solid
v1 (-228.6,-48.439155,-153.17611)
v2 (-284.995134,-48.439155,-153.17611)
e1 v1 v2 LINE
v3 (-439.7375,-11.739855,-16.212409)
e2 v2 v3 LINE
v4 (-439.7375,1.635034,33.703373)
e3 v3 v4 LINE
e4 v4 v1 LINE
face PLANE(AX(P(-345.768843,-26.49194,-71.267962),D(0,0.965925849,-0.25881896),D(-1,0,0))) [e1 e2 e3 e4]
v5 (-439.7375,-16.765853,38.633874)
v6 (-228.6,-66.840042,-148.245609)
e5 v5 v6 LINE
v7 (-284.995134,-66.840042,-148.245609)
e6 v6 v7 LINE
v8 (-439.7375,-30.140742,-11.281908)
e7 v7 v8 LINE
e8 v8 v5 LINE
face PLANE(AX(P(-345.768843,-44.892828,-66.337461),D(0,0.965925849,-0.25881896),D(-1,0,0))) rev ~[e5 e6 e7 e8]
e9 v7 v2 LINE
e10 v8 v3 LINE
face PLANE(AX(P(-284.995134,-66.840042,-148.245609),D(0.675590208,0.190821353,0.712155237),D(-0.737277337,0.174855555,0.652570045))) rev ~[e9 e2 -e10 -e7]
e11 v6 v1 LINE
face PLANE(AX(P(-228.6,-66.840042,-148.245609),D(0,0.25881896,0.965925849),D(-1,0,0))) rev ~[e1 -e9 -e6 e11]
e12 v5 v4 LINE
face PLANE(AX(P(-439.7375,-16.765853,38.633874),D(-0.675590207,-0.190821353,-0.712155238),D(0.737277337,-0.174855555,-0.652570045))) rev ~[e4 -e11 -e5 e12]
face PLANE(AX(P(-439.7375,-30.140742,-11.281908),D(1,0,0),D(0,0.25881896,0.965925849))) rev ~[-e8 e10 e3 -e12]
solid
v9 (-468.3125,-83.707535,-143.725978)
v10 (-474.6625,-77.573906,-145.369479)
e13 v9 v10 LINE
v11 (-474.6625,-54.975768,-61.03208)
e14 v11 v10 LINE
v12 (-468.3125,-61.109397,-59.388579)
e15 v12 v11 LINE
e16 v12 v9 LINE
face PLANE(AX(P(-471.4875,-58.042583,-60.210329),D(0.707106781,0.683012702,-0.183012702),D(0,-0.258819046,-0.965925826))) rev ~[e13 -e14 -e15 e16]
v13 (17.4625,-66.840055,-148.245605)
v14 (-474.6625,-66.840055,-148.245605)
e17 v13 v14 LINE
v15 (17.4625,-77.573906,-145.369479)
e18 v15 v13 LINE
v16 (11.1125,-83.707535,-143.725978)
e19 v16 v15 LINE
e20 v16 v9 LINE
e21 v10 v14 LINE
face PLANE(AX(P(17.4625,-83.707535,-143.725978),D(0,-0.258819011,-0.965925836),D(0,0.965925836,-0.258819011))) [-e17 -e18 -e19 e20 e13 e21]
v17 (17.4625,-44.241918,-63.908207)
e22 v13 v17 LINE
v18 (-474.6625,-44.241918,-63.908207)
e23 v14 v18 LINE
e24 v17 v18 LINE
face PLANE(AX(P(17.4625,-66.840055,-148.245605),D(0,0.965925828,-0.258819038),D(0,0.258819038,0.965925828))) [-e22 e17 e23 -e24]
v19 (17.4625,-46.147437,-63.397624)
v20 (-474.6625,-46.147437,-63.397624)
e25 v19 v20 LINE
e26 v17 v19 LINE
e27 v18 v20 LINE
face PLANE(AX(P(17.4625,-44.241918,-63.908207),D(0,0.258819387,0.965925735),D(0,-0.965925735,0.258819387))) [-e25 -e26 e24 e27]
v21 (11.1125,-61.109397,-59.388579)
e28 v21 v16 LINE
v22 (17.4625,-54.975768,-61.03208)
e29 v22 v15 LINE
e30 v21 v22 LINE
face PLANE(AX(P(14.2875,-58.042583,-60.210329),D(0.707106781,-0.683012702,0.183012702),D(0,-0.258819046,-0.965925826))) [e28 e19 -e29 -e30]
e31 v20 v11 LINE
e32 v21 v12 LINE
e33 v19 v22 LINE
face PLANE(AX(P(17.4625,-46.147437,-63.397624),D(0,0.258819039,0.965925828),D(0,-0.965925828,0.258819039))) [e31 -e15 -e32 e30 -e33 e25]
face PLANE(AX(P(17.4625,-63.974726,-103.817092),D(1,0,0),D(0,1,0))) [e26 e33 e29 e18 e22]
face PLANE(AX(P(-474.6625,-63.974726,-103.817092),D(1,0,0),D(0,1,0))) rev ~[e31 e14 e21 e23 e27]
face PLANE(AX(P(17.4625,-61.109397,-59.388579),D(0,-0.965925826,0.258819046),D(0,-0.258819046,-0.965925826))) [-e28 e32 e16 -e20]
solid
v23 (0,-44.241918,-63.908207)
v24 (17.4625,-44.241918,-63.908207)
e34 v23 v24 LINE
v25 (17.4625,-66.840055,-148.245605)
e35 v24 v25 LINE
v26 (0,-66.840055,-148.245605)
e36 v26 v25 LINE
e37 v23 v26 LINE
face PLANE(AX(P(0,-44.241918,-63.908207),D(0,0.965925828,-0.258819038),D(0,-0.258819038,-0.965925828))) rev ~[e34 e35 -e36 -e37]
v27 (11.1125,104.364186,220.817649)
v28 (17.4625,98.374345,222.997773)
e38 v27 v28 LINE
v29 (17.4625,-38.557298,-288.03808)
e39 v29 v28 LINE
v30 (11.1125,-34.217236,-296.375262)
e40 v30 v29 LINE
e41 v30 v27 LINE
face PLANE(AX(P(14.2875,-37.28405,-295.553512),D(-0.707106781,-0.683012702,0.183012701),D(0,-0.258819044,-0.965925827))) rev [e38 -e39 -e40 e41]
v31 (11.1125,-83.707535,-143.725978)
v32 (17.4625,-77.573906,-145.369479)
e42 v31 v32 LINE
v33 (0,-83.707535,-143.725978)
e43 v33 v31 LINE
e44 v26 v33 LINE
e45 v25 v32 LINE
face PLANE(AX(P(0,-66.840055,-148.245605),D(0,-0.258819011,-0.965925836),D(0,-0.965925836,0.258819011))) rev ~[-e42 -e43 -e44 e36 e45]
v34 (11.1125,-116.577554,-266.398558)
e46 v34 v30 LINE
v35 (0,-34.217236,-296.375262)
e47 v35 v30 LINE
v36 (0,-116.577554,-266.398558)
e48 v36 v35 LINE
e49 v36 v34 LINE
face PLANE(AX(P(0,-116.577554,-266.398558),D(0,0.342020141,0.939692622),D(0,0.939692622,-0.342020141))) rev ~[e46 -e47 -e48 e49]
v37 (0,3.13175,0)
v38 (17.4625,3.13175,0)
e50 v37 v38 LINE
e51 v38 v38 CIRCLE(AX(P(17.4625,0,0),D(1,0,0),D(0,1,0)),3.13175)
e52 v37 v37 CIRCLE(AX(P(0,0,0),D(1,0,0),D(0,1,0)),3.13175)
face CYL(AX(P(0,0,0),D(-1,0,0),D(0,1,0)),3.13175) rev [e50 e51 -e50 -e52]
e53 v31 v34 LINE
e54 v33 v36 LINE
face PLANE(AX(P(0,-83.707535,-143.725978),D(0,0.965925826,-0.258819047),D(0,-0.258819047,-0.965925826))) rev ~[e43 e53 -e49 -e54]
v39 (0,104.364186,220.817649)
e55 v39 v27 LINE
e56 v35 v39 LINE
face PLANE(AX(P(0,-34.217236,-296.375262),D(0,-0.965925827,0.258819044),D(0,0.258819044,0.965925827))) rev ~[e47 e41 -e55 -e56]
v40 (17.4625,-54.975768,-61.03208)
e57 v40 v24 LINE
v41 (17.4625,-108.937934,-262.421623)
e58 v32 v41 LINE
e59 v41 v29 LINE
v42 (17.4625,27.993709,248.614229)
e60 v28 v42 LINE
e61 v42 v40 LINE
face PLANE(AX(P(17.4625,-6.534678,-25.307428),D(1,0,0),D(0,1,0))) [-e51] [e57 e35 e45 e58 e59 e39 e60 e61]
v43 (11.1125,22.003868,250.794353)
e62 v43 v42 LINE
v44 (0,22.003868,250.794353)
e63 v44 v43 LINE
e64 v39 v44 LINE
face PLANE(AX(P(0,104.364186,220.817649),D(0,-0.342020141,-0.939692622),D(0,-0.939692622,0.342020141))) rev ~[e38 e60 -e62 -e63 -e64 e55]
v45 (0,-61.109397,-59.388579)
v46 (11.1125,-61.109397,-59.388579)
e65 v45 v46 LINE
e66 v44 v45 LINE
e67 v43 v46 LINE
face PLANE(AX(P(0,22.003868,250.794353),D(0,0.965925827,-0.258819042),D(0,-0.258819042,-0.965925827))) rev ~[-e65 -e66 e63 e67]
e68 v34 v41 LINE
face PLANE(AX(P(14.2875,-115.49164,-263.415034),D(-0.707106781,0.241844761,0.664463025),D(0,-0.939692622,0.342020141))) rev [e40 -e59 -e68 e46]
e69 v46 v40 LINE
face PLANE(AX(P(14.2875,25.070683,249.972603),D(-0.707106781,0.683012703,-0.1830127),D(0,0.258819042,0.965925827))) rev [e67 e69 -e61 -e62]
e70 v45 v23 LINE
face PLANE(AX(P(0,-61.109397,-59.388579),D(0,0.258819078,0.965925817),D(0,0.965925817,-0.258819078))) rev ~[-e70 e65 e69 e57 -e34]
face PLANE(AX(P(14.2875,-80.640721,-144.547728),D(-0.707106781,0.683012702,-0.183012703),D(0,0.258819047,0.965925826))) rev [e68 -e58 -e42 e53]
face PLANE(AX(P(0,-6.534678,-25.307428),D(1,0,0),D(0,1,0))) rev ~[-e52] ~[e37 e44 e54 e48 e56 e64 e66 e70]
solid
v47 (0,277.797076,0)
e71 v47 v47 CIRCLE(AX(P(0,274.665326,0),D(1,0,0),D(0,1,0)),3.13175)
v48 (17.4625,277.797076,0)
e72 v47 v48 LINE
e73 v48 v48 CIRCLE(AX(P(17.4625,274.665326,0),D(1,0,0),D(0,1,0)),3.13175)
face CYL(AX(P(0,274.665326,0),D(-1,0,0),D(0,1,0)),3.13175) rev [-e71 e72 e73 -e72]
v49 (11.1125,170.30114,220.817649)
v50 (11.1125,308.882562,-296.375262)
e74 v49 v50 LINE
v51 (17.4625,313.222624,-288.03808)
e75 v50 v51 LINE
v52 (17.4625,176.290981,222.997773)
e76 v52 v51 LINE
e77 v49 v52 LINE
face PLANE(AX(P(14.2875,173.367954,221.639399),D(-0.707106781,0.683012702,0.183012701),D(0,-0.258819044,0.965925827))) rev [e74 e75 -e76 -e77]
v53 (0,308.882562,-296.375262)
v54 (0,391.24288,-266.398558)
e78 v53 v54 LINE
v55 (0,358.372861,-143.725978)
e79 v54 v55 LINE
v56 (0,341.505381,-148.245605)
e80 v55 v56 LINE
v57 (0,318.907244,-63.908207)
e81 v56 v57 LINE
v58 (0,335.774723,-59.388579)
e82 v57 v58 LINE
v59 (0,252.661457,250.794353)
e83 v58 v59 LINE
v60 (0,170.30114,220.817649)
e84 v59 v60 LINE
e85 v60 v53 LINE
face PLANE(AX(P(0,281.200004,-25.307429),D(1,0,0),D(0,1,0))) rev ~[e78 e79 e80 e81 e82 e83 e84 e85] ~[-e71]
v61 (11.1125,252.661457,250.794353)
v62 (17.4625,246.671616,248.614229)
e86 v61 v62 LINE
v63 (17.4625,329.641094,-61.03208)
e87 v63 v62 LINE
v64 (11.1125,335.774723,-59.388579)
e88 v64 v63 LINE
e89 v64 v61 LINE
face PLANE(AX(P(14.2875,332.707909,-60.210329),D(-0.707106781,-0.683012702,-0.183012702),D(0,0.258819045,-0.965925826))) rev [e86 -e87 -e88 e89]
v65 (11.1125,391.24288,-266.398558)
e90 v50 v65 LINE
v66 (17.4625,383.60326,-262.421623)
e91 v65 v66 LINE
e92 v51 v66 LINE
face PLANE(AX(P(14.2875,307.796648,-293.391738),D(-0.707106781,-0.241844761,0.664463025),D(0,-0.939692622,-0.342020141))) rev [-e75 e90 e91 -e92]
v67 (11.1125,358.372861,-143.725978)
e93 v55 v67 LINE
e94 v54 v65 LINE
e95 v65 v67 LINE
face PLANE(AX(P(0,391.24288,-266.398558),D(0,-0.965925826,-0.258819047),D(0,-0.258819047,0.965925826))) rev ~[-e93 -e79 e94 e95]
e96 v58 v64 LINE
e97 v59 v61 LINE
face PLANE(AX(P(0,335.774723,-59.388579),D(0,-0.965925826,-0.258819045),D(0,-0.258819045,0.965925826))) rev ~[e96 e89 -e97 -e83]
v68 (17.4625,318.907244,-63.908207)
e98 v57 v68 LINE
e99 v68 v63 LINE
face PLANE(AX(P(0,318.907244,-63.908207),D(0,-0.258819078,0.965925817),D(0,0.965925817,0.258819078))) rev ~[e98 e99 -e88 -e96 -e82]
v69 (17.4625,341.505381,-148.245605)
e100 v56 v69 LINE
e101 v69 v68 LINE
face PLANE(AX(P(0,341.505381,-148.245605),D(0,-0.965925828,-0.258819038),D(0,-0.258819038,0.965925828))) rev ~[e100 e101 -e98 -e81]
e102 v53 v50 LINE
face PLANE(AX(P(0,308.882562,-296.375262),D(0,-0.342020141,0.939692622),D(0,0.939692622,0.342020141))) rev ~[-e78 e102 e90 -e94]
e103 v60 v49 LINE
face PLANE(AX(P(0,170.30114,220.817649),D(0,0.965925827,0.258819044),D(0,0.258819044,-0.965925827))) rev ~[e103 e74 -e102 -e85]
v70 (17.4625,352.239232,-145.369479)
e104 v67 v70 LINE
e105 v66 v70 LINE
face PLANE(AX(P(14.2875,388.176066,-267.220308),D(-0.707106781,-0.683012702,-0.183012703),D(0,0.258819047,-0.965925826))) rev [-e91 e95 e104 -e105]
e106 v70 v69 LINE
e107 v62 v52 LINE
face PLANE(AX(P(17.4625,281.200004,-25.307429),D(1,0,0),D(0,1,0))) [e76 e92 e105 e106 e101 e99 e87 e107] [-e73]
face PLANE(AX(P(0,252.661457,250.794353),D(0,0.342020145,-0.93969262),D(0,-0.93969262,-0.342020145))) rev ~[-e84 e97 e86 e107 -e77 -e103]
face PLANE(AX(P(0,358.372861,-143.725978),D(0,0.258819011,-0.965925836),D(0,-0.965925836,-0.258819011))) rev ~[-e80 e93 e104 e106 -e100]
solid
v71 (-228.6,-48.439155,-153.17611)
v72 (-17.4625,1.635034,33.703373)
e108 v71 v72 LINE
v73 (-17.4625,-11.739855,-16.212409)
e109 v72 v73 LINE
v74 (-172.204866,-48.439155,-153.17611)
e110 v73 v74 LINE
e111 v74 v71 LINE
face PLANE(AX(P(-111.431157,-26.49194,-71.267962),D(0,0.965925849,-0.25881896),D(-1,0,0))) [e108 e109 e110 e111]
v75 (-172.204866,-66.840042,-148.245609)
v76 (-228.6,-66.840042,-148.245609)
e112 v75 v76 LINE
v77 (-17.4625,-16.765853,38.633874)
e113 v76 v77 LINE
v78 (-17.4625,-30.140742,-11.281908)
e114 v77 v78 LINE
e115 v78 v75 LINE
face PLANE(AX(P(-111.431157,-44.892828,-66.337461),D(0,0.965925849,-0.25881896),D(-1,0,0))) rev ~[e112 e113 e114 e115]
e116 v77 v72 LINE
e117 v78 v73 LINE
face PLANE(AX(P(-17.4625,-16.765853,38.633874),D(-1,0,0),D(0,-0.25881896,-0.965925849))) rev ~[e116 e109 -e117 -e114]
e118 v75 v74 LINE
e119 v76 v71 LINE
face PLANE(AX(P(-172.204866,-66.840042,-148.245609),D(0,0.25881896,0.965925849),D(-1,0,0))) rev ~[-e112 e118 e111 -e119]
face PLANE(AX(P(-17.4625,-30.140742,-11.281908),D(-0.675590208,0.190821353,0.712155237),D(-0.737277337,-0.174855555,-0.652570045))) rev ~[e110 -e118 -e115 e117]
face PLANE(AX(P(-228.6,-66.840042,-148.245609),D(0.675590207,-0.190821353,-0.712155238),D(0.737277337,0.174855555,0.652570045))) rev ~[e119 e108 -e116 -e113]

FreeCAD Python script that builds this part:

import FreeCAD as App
import Part
import Sketcher
Q = App.Units.Quantity


def edges_at(feature, points):
    """Names of the edges that pass closest to the given points."""
    edges = feature.Shape.Edges
    near = lambda p: min(range(len(edges)), key=lambda i: edges[i].distToShape(Part.Vertex(*p))[0])
    return sorted({f"Edge{near(p) + 1}" for p in points})


def add_polygon(sketch, points):
    """Adds a closed chain of lines whose ends are joined by coincident constraints."""
    first, n = sketch.GeometryCount, len(points)
    for a, b in zip(points, points[1:] + points[:1]):
        sketch.addGeometry(Part.LineSegment(App.Vector(*a, 0), App.Vector(*b, 0)), False)
    for i in range(n):
        sketch.addConstraint(Sketcher.Constraint("Coincident", first + i, 2, first + (i + 1) % n, 1))

doc = App.newDocument("Part")
body = doc.addObject("PartDesign::Body", "Body")
body.AllowCompound = True

# Sketch on YZ plane
sketch1 = doc.addObject("Sketcher::SketchObject", "Sketch")
body.addObject(sketch1)
sketch1.AttachmentSupport = (doc.YZ_Plane, [""])
sketch1.MapMode = "FlatFace"
add_polygon(sketch1, [(104.4, 220.8), (22, 250.8), (-61.1, -59.4), (-44.2, -63.9), (-66.8, -148.2), (-83.7, -143.7), (-116.6, -266.4), (-34.2, -296.4)])  # lines 0-7
sketch1.addGeometry(Part.Circle(App.Vector(0, 0, 0), App.Vector(0, 0, 1), 3.1), False)  # 8
add_polygon(sketch1, [(252.7, 250.8), (170.3, 220.8), (308.9, -296.4), (391.2, -266.4), (358.4, -143.7), (341.5, -148.2), (318.9, -63.9), (335.8, -59.4)])  # lines 9-16
sketch1.addGeometry(Part.Circle(App.Vector(274.7, 0, 0), App.Vector(0, 0, 1), 3.1), False)  # 17
sketch1.addConstraint(Sketcher.Constraint("Coincident", 8, 3, -1, 1))
sketch1.addConstraint(Sketcher.Constraint("Equal", 8, 17))
sketch1.addConstraint(Sketcher.Constraint("PointOnObject", 17, 3, -1))
sketch1.addConstraint(Sketcher.Constraint("Perpendicular", 1, 2))
sketch1.addConstraint(Sketcher.Constraint("Perpendicular", 2, 3))
sketch1.addConstraint(Sketcher.Constraint("Perpendicular", 3, 4))
sketch1.addConstraint(Sketcher.Constraint("Perpendicular", 4, 5))
sketch1.addConstraint(Sketcher.Constraint("Parallel", 0, 6))
sketch1.addConstraint(Sketcher.Constraint("Parallel", 5, 7))
sketch1.addConstraint(Sketcher.Constraint("Parallel", 9, 11))
sketch1.addConstraint(Sketcher.Constraint("Parallel", 10, 12))
sketch1.addConstraint(Sketcher.Constraint("Perpendicular", 12, 13))
sketch1.addConstraint(Sketcher.Constraint("Perpendicular", 13, 14))
sketch1.addConstraint(Sketcher.Constraint("Perpendicular", 14, 15))
sketch1.addConstraint(Sketcher.Constraint("Perpendicular", 15, 16))
sketch1.addConstraint(Sketcher.Constraint("Horizontal", 7, 2, 9, 2))
sketch1.addConstraint(Sketcher.Constraint("Horizontal", 6, 2, 10, 2))
sketch1.addConstraint(Sketcher.Constraint("Horizontal", 5, 2, 11, 2))
sketch1.addConstraint(Sketcher.Constraint("Horizontal", 4, 2, 12, 2))
sketch1.addConstraint(Sketcher.Constraint("Horizontal", 3, 2, 13, 2))
sketch1.addConstraint(Sketcher.Constraint("Horizontal", 2, 2, 14, 2))
sketch1.addConstraint(Sketcher.Constraint("Horizontal", 1, 2, 15, 2))
sketch1.addConstraint(Sketcher.Constraint("Equal", 2, 4))
sketch1.addConstraint(Sketcher.Constraint("Equal", 6, 9))
sketch1.addConstraint(Sketcher.Constraint("Equal", 7, 10))
sketch1.addConstraint(Sketcher.Constraint("Distance", 5, Q("5 in")))
sketch1.addConstraint(Sketcher.Constraint("Angle", 0, Q("160 deg")))
sketch1.addConstraint(Sketcher.Constraint("Angle", 1, Q("-105 deg")))
sketch1.addConstraint(Sketcher.Constraint("Diameter", 8, 6.2635))
sketch1.addConstraint(Sketcher.Constraint("Distance", 2, Q("0.6875 in")))
sketch1.addConstraint(Sketcher.Constraint("Distance", 3, Q("3.4375 in")))
sketch1.addConstraint(Sketcher.Constraint("Distance", 1, 321.125001))
sketch1.addConstraint(Sketcher.Constraint("DistanceX", 4, 2, 6, 2, 49.490299))
sketch1.addConstraint(Sketcher.Constraint("DistanceX", 6, 2, 10, 2, 343.099798))
sketch1.addConstraint(Sketcher.Constraint("DistanceX", -1, 1, 0, 2, 22.003868))
sketch1.addConstraint(Sketcher.Constraint("DistanceY", 1, 2, -1, 1, 59.388579))
sketch1.addConstraint(Sketcher.Constraint("DistanceX", 3, 2, 17, 3, 341.505381))
pad1 = doc.addObject("PartDesign::Pad", "Pad")
body.addObject(pad1)
pad1.Profile = sketch1
pad1.Length = Q("0.6875 in")
doc.recompute()

chamfer = doc.addObject("PartDesign::Chamfer", "Chamfer")
body.addObject(chamfer)
chamfer.Base = (pad1, edges_at(pad1, [
    (17.462, -19.553, 95.703),
    (17.462, 35.073, -37.779),
    (17.462, -100.143, -205.062),
    (17.462, -75.397, -281.387),
    (17.462, 239.592, -37.779),
    (17.462, 294.218, 95.703),
    (17.462, 374.808, -205.062),
    (17.462, 350.063, -281.387),
]))
chamfer.Size = Q("0.25 in")
body2 = doc.addObject("PartDesign::Body", "Body001")

# Sketch on YZ plane
sketch2 = doc.addObject("Sketcher::SketchObject", "Sketch001")
body2.addObject(sketch2)
sketch2.AttachmentSupport = (doc.getObject("YZ_Plane001"), [""])
sketch2.MapMode = "FlatFace"
sketch2.AttachmentOffset = App.Placement(App.Vector(0, 0, 0.6875 * 25.4), App.Rotation())
add_polygon(sketch2, [(-66.8, -148.2), (-44.2, -63.9), (-46.1, -63.4), (-61.1, -59.4), (-83.7, -143.7)])  # lines 0-4
sketch2.addConstraint(Sketcher.Constraint("Perpendicular", 0, 1))
sketch2.addConstraint(Sketcher.Constraint("Parallel", 1, 2))
sketch2.addConstraint(Sketcher.Constraint("Perpendicular", 2, 3))
sketch2.addConstraint(Sketcher.Constraint("Perpendicular", 3, 4))
sketch2.addConstraint(Sketcher.Constraint("Angle", 0, Q("75 deg")))
sketch2.addConstraint(Sketcher.Constraint("Distance", 0, Q("3.4375 in")))
sketch2.addConstraint(Sketcher.Constraint("Distance", 4, Q("0.6875 in")))
sketch2.addConstraint(Sketcher.Constraint("Distance", 1, 1.972739))
sketch2.addConstraint(Sketcher.Constraint("DistanceY", 2, 2, -1, 1, 59.388579))
sketch2.addConstraint(Sketcher.Constraint("DistanceX", 0, 2, -1, 1, 44.241918))
pad2 = doc.addObject("PartDesign::Pad", "Pad001")
body2.addObject(pad2)
pad2.Profile = sketch2
pad2.Length = Q("19.375 in")
pad2.Reversed = True
doc.recompute()

chamfer2 = doc.addObject("PartDesign::Chamfer", "Chamfer001")
body2.addObject(chamfer2)
chamfer2.Base = (pad2, edges_at(pad2, [(17.462, -72.408, -101.557), (-474.663, -72.408, -101.557)]))
chamfer2.Size = Q("0.25 in")
body3 = doc.addObject("PartDesign::Body", "Body002")
body3.AllowCompound = True

# Sketch on an angled plane
sketch3 = doc.addObject("Sketcher::SketchObject", "Sketch002")
body3.addObject(sketch3)
sketch3.Placement = App.Placement(App.Vector(0, -25.30122, 6.779441), App.Rotation(App.Vector(-1, 0, 0), App.Vector(0, 0.25881896, 0.965925849), App.Vector(0, 0.965925849, -0.25881896), "ZXY"))
add_polygon(sketch3, [(17, 33), (17, -19), (172, -160), (229, -160)])  # lines 0-3
add_polygon(sketch3, [(440, 33), (229, -160), (285, -160), (440, -19)])  # lines 4-7
sketch3.addConstraint(Sketcher.Constraint("Vertical", 0))
sketch3.addConstraint(Sketcher.Constraint("Horizontal", 2))
sketch3.addConstraint(Sketcher.Constraint("Horizontal", 5))
sketch3.addConstraint(Sketcher.Constraint("Vertical", 7))
sketch3.addConstraint(Sketcher.Constraint("Coincident", 4, 2, 2, 2))
sketch3.addConstraint(Sketcher.Constraint("Parallel", 1, 3))
sketch3.addConstraint(Sketcher.Constraint("Parallel", 4, 6))
sketch3.addConstraint(Sketcher.Constraint("Horizontal", 0, 2, 6, 2))
sketch3.addConstraint(Sketcher.Constraint("Horizontal", 3, 2, 7, 2))
sketch3.addConstraint(Sketcher.Constraint("Equal", 2, 5))
sketch3.addConstraint(Sketcher.Constraint("DistanceX", -1, 1, 2, 2, Q("9 in")))
sketch3.addConstraint(Sketcher.Constraint("Angle", 1, Q("-42.5 deg")))
sketch3.addConstraint(Sketcher.Constraint("DistanceX", -1, 1, 0, 2, Q("0.6875 in")))
sketch3.addConstraint(Sketcher.Constraint("DistanceY", 0, 2, 0, 1, 51.676619))
sketch3.addConstraint(Sketcher.Constraint("DistanceY", 0, 2, -1, 1, 18.698484))
pad3 = doc.addObject("PartDesign::Pad", "Pad002")
body3.addObject(pad3)
pad3.Profile = sketch3
pad3.Length = Q("0.75 in")

doc.recompute()
